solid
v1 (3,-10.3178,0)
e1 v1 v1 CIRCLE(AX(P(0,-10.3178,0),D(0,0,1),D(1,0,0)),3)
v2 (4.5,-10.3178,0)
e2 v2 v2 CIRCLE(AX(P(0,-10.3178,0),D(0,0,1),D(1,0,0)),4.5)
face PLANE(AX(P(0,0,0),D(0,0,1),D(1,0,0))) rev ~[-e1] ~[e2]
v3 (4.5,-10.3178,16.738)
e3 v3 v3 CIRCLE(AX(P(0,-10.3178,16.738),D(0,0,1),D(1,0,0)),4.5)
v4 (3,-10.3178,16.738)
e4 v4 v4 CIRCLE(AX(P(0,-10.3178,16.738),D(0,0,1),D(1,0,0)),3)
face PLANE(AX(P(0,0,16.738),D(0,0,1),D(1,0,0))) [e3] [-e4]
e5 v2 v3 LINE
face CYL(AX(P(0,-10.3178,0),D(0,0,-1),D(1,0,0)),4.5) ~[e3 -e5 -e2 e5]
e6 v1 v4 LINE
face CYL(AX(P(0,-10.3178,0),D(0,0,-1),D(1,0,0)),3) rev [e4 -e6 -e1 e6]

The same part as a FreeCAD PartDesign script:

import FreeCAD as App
import Part
import Sketcher
Q = App.Units.Quantity

doc = App.newDocument("Part")
params = doc.addObject("Spreadsheet::Sheet", "Params")
for row, (alias, value) in enumerate([
    ("sketch1_diameter", "9 mm"),
    ("sketch1_diameter2", "6 mm"),
    ("pad1_length", "16.738 mm"),
], start=1):
    params.set(f"A{row}", alias)
    params.set(f"B{row}", "=" + value)
    params.setAlias(f"B{row}", alias)

body = doc.addObject("PartDesign::Body", "Body")

# Sketch on XY plane
sketch1 = doc.addObject("Sketcher::SketchObject", "Sketch")
body.addObject(sketch1)
sketch1.AttachmentSupport = (doc.XY_Plane, [""])
sketch1.MapMode = "FlatFace"
sketch1.addGeometry(Part.Circle(App.Vector(0, -10.3, 0), App.Vector(0, 0, 1), 4.5), False)
sketch1.addGeometry(Part.Circle(App.Vector(0, -10.3, 0), App.Vector(0, 0, 1), 3), False)
sketch1.addConstraint(Sketcher.Constraint("Coincident", 1, 3, 0, 3))
sketch1.addConstraint(Sketcher.Constraint("PointOnObject", 0, 3, -2))
sketch1.addConstraint(Sketcher.Constraint("Diameter", 0, Q("9 mm")))
sketch1.addConstraint(Sketcher.Constraint("Diameter", 1, Q("6 mm")))
sketch1.addConstraint(Sketcher.Constraint("DistanceY", 0, 3, -1, 1, Q("10.3178 mm")))
sketch1.setExpression("Constraints[2]", "Params.sketch1_diameter")
sketch1.setExpression("Constraints[3]", "Params.sketch1_diameter2")
pad1 = doc.addObject("PartDesign::Pad", "Pad")
body.addObject(pad1)
pad1.Profile = sketch1
pad1.setExpression("Length", "Params.pad1_length")

doc.recompute()
